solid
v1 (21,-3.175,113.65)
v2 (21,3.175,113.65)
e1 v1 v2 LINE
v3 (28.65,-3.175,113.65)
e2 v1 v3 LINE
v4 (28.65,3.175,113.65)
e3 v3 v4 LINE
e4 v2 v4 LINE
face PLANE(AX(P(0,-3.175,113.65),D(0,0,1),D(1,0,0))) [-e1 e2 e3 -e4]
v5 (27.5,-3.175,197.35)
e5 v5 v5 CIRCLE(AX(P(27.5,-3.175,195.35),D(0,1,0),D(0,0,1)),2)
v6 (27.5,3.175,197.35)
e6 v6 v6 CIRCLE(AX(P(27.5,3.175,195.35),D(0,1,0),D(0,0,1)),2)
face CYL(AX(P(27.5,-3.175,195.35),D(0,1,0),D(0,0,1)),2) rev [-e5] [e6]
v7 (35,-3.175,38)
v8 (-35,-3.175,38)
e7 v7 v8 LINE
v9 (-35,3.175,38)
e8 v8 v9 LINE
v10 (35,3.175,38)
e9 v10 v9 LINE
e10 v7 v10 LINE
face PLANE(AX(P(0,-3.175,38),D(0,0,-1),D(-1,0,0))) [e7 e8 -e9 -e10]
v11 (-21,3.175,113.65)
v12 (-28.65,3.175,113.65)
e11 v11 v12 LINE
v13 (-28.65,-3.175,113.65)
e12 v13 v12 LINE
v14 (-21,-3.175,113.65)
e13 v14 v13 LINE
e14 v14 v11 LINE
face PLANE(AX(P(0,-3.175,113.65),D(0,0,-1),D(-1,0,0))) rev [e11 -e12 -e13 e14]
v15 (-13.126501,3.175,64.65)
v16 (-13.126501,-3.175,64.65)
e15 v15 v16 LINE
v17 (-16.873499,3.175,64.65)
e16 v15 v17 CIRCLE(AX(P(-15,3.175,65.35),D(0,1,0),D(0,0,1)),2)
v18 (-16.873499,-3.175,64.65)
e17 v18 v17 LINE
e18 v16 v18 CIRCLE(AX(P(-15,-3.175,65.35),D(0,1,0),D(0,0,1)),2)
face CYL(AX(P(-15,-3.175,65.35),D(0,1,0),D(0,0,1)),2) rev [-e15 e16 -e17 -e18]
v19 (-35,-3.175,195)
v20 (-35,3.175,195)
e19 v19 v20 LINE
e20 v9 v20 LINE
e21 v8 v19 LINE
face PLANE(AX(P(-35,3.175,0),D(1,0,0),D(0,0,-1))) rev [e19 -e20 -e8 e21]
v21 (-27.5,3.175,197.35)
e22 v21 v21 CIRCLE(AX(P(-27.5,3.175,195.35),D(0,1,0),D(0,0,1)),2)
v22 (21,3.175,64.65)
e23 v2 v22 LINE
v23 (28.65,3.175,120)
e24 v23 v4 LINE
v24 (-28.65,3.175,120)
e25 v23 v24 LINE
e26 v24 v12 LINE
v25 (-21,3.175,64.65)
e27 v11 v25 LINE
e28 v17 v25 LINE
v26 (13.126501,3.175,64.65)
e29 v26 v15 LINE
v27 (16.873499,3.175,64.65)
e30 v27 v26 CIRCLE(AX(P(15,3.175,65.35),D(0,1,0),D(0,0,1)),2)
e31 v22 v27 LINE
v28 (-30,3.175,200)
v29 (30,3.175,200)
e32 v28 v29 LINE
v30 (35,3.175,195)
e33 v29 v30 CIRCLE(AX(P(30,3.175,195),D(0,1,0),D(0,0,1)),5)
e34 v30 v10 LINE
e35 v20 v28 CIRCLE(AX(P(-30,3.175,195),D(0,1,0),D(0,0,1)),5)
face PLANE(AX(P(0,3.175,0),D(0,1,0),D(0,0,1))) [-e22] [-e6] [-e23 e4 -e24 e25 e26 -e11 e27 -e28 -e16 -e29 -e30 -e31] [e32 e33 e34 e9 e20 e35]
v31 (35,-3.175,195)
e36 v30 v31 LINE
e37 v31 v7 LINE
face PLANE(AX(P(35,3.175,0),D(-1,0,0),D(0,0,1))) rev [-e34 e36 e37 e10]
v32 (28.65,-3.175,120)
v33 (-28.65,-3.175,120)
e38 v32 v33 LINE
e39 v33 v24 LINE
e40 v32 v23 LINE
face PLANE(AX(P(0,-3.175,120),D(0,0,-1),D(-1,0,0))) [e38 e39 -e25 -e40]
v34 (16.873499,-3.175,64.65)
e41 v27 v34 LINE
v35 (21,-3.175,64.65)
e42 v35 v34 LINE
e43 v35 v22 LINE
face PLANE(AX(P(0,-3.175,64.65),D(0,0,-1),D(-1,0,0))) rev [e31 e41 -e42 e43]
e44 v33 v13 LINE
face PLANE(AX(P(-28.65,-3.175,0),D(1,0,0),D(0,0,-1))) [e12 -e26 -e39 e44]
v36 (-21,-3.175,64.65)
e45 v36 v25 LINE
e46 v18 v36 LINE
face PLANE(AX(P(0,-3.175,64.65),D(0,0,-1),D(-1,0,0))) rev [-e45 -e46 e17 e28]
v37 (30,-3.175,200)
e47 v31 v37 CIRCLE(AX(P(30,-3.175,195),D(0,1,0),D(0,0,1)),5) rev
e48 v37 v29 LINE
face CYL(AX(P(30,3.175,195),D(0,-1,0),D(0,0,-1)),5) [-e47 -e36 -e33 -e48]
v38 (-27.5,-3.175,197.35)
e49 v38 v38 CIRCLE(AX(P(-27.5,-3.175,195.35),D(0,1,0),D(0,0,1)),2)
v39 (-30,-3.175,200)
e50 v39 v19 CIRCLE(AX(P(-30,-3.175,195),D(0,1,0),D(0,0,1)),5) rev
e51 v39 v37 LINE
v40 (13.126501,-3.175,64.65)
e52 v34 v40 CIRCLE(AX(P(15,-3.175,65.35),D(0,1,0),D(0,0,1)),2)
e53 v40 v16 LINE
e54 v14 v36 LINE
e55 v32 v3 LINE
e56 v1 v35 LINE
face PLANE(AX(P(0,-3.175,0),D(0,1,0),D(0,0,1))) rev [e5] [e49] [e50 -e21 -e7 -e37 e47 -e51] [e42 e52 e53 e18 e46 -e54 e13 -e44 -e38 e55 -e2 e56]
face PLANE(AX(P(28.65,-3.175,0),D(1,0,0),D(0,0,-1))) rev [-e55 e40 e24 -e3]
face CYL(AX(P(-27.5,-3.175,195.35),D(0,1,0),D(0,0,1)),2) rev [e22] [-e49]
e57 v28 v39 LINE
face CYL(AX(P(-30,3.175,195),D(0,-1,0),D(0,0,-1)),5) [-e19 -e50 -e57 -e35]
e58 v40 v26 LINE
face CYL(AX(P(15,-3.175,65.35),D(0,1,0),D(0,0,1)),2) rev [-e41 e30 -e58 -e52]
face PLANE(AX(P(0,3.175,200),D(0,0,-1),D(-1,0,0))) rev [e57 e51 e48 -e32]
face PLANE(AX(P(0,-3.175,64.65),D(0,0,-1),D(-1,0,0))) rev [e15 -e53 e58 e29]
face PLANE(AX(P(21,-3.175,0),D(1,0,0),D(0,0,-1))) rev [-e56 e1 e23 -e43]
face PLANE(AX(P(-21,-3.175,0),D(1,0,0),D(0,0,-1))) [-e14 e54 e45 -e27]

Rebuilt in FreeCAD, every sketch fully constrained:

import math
import FreeCAD as App
import Part
import Sketcher
Q = App.Units.Quantity


def edges_at(feature, points):
    """Names of the edges that pass closest to the given points."""
    edges = feature.Shape.Edges
    near = lambda p: min(range(len(edges)), key=lambda i: edges[i].distToShape(Part.Vertex(*p))[0])
    return sorted({f"Edge{near(p) + 1}" for p in points})


def add_polygon(sketch, points):
    """Adds a closed chain of lines whose ends are joined by coincident constraints."""
    first, n = sketch.GeometryCount, len(points)
    for a, b in zip(points, points[1:] + points[:1]):
        sketch.addGeometry(Part.LineSegment(App.Vector(*a, 0), App.Vector(*b, 0)), False)
    for i in range(n):
        sketch.addConstraint(Sketcher.Constraint("Coincident", first + i, 2, first + (i + 1) % n, 1))

doc = App.newDocument("Part")
body = doc.addObject("PartDesign::Body", "Body")

# Sketch on XZ plane
sketch1 = body.newObject("Sketcher::SketchObject", "Sketch")
sketch1.AttachmentSupport = (doc.getObject("XZ_Plane"), [""])
sketch1.MapMode = "FlatFace"
sketch1.addGeometry(Part.LineSegment(App.Vector(35, 200, 0), App.Vector(35, 0, 0)), False)
sketch1.addGeometry(Part.ArcOfCircle(Part.Circle(App.Vector(0, 0, 0), App.Vector(0, 0, 1), 35), math.radians(180), math.radians(360)), False)
sketch1.addGeometry(Part.LineSegment(App.Vector(-35, 0, 0), App.Vector(-35, 200, 0)), False)
sketch1.addGeometry(Part.LineSegment(App.Vector(-35, 200, 0), App.Vector(35, 200, 0)), False)
sketch1.addConstraint(Sketcher.Constraint("Tangent", 0, 2, 1, 2))
sketch1.addConstraint(Sketcher.Constraint("Tangent", 1, 1, 2, 1))
sketch1.addConstraint(Sketcher.Constraint("Coincident", 2, 2, 3, 1))
sketch1.addConstraint(Sketcher.Constraint("Coincident", 3, 2, 0, 1))
sketch1.addConstraint(Sketcher.Constraint("Vertical", 0))
sketch1.addConstraint(Sketcher.Constraint("Vertical", 2))
sketch1.addConstraint(Sketcher.Constraint("Horizontal", 3))
sketch1.addConstraint(Sketcher.Constraint("Coincident", 1, 3, -1, 1))
sketch1.addConstraint(Sketcher.Constraint("Radius", 1, Q("35 mm")))
sketch1.addConstraint(Sketcher.Constraint("DistanceY", 0, 2, 0, 1, Q("200 mm")))
pad1 = body.newObject("PartDesign::Pad", "Pad")
pad1.Profile = sketch1
pad1.Length = 6.35
pad1.Midplane = True

# Sketch on XZ plane
sketch2 = body.newObject("Sketcher::SketchObject", "Sketch001")
sketch2.AttachmentSupport = (doc.getObject("XZ_Plane"), [""])
sketch2.MapMode = "FlatFace"
sketch2.AttachmentOffset = App.Placement(App.Vector(0, 0, -3.175), App.Rotation())
sketch2.addGeometry(Part.LineSegment(App.Vector(-35, 38, 0), App.Vector(35, 38, 0)), False)
sketch2.addGeometry(Part.LineSegment(App.Vector(35, 38, 0), App.Vector(35, 0, 0)), False)
sketch2.addGeometry(Part.ArcOfCircle(Part.Circle(App.Vector(0, 0, 0), App.Vector(0, 0, 1), 35), math.radians(180), math.radians(360)), False)
sketch2.addGeometry(Part.LineSegment(App.Vector(-35, 0, 0), App.Vector(-35, 38, 0)), False)
sketch2.addConstraint(Sketcher.Constraint("Coincident", 0, 2, 1, 1))
sketch2.addConstraint(Sketcher.Constraint("Tangent", 1, 2, 2, 2))
sketch2.addConstraint(Sketcher.Constraint("Tangent", 2, 1, 3, 1))
sketch2.addConstraint(Sketcher.Constraint("Coincident", 3, 2, 0, 1))
sketch2.addConstraint(Sketcher.Constraint("Horizontal", 0))
sketch2.addConstraint(Sketcher.Constraint("Vertical", 1))
sketch2.addConstraint(Sketcher.Constraint("Vertical", 3))
sketch2.addConstraint(Sketcher.Constraint("Coincident", 2, 3, -1, 1))
sketch2.addConstraint(Sketcher.Constraint("Radius", 2, Q("35 mm")))
sketch2.addConstraint(Sketcher.Constraint("DistanceY", 1, 2, 1, 1, Q("38 mm")))
pocket1 = body.newObject("PartDesign::Pocket", "Pocket")
pocket1.Profile = sketch2
pocket1.Type = "ThroughAll"
pocket1.Reversed = True

# Sketch on XZ plane
sketch3 = body.newObject("Sketcher::SketchObject", "Sketch002")
sketch3.AttachmentSupport = (doc.getObject("XZ_Plane"), [""])
sketch3.MapMode = "FlatFace"
sketch3.AttachmentOffset = App.Placement(App.Vector(0, 0, -3.175), App.Rotation())
add_polygon(sketch3, [(-21, 64.65), (-21, 113.65), (-28.65, 113.65), (-28.65, 120), (28.65, 120), (28.65, 113.65), (21, 113.65), (21, 64.65)])  # lines 0-7
sketch3.addConstraint(Sketcher.Constraint("Vertical", 0))
sketch3.addConstraint(Sketcher.Constraint("Horizontal", 1))
sketch3.addConstraint(Sketcher.Constraint("Vertical", 2))
sketch3.addConstraint(Sketcher.Constraint("Horizontal", 3))
sketch3.addConstraint(Sketcher.Constraint("Vertical", 4))
sketch3.addConstraint(Sketcher.Constraint("Horizontal", 5))
sketch3.addConstraint(Sketcher.Constraint("Vertical", 6))
sketch3.addConstraint(Sketcher.Constraint("Horizontal", 7))
sketch3.addConstraint(Sketcher.Constraint("Symmetric", 1, 2, 4, 2, -2))
sketch3.addConstraint(Sketcher.Constraint("Equal", 1, 5))
sketch3.addConstraint(Sketcher.Constraint("DistanceX", 7, 2, 7, 1, Q("42 mm")))
sketch3.addConstraint(Sketcher.Constraint("DistanceY", 0, 1, 0, 2, Q("49 mm")))
sketch3.addConstraint(Sketcher.Constraint("DistanceX", 3, 1, 3, 2, Q("57.3 mm")))
sketch3.addConstraint(Sketcher.Constraint("DistanceY", -1, 1, 2, 2, Q("120 mm")))
sketch3.addConstraint(Sketcher.Constraint("DistanceY", 2, 1, 2, 2, Q("6.35 mm")))
pocket2 = body.newObject("PartDesign::Pocket", "Pocket001")
pocket2.Profile = sketch3
pocket2.Type = "ThroughAll"
pocket2.Reversed = True
doc.recompute()

fillet = body.newObject("PartDesign::Fillet", "Fillet")
fillet.Base = (pocket2, edges_at(pocket2, [(35, 0, 200), (-35, 0, 200)]))
fillet.Radius = 5

# Sketch on XZ plane
sketch4 = body.newObject("Sketcher::SketchObject", "Sketch003")
sketch4.AttachmentSupport = (doc.getObject("XZ_Plane"), [""])
sketch4.MapMode = "FlatFace"
sketch4.AttachmentOffset = App.Placement(App.Vector(0, 0, -3.175), App.Rotation())
sketch4.addGeometry(Part.Circle(App.Vector(27.5, 195.35, 0), App.Vector(0, 0, 1), 2), False)
sketch4.addGeometry(Part.Circle(App.Vector(-27.5, 195.35, 0), App.Vector(0, 0, 1), 2), False)
sketch4.addGeometry(Part.Circle(App.Vector(15, 65.35, 0), App.Vector(0, 0, 1), 2), False)
sketch4.addGeometry(Part.Circle(App.Vector(-15, 65.35, 0), App.Vector(0, 0, 1), 2), False)
sketch4.addConstraint(Sketcher.Constraint("Equal", 0, 1))
sketch4.addConstraint(Sketcher.Constraint("Equal", 1, 2))
sketch4.addConstraint(Sketcher.Constraint("Equal", 2, 3))
sketch4.addConstraint(Sketcher.Constraint("Symmetric", 0, 3, 1, 3, -2))
sketch4.addConstraint(Sketcher.Constraint("Symmetric", 2, 3, 3, 3, -2))
sketch4.addConstraint(Sketcher.Constraint("Diameter", 0, Q("4 mm")))
sketch4.addConstraint(Sketcher.Constraint("DistanceX", -1, 1, 2, 3, Q("15 mm")))
sketch4.addConstraint(Sketcher.Constraint("DistanceX", 1, 3, 0, 3, Q("55 mm")))
sketch4.addConstraint(Sketcher.Constraint("DistanceY", 2, 3, 0, 3, Q("130 mm")))
sketch4.addConstraint(Sketcher.Constraint("DistanceY", -1, 1, 0, 3, Q("195.35 mm")))
pocket3 = body.newObject("PartDesign::Pocket", "Pocket002")
pocket3.Profile = sketch4
pocket3.Type = "ThroughAll"
pocket3.Reversed = True

doc.recompute()
